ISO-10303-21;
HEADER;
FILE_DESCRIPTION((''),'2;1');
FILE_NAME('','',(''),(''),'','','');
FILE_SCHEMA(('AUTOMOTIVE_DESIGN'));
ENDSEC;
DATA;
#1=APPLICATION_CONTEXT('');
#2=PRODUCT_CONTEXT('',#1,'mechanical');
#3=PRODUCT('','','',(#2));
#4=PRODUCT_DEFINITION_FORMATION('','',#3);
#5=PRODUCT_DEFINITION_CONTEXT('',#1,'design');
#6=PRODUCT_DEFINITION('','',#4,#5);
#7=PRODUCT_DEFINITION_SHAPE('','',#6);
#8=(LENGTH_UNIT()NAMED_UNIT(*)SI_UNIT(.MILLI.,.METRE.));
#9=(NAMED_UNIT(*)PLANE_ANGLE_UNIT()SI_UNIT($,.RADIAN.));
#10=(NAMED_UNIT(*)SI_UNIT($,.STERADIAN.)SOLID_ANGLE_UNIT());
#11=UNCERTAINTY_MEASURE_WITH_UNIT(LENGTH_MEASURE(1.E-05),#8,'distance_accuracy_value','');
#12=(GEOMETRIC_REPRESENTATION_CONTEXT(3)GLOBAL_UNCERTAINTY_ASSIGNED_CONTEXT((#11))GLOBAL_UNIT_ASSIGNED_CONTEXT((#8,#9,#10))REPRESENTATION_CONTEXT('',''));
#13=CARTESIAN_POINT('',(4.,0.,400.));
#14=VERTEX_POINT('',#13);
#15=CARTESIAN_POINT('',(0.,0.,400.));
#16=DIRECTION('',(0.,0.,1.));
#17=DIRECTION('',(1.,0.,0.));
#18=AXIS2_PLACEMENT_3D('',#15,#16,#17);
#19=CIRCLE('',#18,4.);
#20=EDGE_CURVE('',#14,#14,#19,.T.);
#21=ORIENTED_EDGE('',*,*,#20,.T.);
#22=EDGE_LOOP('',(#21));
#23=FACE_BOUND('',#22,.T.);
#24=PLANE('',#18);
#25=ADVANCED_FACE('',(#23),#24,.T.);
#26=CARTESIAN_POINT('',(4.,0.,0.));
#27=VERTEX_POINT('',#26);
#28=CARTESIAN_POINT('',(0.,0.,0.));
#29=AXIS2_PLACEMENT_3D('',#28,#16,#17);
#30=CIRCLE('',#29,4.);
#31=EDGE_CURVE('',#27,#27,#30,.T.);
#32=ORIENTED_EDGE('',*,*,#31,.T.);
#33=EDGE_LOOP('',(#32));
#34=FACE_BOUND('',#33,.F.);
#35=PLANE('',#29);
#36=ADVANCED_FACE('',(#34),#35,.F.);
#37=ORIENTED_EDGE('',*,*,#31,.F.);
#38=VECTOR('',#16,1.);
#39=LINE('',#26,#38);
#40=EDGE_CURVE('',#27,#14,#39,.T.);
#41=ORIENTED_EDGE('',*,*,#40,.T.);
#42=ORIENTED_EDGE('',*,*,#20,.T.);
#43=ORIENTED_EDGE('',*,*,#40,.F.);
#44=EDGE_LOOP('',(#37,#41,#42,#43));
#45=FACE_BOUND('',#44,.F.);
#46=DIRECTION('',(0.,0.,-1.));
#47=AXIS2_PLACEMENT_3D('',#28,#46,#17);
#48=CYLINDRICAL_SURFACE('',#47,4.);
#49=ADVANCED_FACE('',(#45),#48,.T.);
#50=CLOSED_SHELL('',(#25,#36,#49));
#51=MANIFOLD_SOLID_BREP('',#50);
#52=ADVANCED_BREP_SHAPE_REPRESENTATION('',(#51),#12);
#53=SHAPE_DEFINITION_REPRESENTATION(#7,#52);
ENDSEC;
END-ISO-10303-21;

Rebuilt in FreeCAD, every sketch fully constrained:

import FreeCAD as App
import Part
import Sketcher
from FreeCAD import Vector

doc = App.newDocument("Part")
params = doc.addObject("Spreadsheet::Sheet", "Params")
for row, (alias, value) in enumerate([
    ("sketch1_diameter", "8 mm"),
    ("pad1_length", "400 mm"),
], start=1):
    params.set(f"A{row}", alias)
    params.set(f"B{row}", "=" + value)
    params.setAlias(f"B{row}", alias)

body = doc.addObject("PartDesign::Body", "Body")

sketch1 = doc.addObject("Sketcher::SketchObject", "Sketch")
body.addObject(sketch1)
sketch1.AttachmentSupport = (doc.XY_Plane, [""])
sketch1.MapMode = "FlatFace"
sketch1.addGeometry(Part.Circle(Vector(0, 0, 0), Vector(0, 0, 1), 4), False)
sketch1.addConstraint(Sketcher.Constraint("Coincident", 0, 3, -1, 1))
sketch1.addConstraint(Sketcher.Constraint("Diameter", 0, 8.0))
sketch1.setExpression("Constraints[1]", "Params.sketch1_diameter")
pad1 = doc.addObject("PartDesign::Pad", "Pad")
body.addObject(pad1)
pad1.Profile = sketch1
pad1.setExpression("Length", "Params.pad1_length")

doc.recompute()
